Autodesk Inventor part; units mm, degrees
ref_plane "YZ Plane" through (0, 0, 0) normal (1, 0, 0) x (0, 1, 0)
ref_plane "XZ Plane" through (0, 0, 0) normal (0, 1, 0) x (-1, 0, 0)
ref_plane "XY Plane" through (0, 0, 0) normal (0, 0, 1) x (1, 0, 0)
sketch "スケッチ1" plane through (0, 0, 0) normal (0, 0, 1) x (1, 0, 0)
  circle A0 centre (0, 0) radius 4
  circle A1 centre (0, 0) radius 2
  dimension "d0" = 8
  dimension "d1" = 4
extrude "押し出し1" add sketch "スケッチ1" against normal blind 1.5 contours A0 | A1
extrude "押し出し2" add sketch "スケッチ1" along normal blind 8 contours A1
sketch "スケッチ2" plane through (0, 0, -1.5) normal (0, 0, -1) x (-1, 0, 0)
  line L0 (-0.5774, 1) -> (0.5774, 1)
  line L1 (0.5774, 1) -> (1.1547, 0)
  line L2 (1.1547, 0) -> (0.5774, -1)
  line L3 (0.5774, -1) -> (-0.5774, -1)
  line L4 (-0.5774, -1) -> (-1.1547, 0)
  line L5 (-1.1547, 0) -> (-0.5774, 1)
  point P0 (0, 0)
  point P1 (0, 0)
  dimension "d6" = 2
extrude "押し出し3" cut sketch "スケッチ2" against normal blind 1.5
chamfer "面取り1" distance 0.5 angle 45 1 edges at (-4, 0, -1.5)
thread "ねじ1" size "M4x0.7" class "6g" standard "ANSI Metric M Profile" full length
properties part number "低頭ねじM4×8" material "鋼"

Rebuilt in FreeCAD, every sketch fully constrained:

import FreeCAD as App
import Part
import Sketcher
from FreeCAD import Vector
Q = App.Units.Quantity


def edges_at(feature, points):
    """Names of the edges that pass closest to the given points."""
    edges = feature.Shape.Edges
    near = lambda p: min(range(len(edges)), key=lambda i: edges[i].distToShape(Part.Vertex(*p))[0])
    return sorted({f"Edge{near(p) + 1}" for p in points})


def add_polygon(sketch, points):
    """Adds a closed chain of lines whose ends are joined by coincident constraints."""
    first, n = sketch.GeometryCount, len(points)
    for a, b in zip(points, points[1:] + points[:1]):
        sketch.addGeometry(Part.LineSegment(App.Vector(*a, 0), App.Vector(*b, 0)), False)
    for i in range(n):
        sketch.addConstraint(Sketcher.Constraint("Coincident", first + i, 2, first + (i + 1) % n, 1))

doc = App.newDocument("Part")
params = doc.addObject("Spreadsheet::Sheet", "Params")
for row, (alias, value) in enumerate([
    ("sketch1_diameter", "8 mm"),
    ("pad1_length", "1.5 mm"),
    ("sketch2_diameter", "4 mm"),
    ("pad2_length", "8 mm"),
    ("pocket1_length", "1.5 mm"),
    ("chamfer_size", "0.5 mm"),
], start=1):
    params.set(f"A{row}", alias)
    params.set(f"B{row}", "=" + value)
    params.setAlias(f"B{row}", alias)

body = doc.addObject("PartDesign::Body", "Body")

sketch1 = body.newObject("Sketcher::SketchObject", "Sketch")
sketch1.AttachmentSupport = (doc.getObject("XY_Plane"), [""])
sketch1.MapMode = "FlatFace"
sketch1.addGeometry(Part.Circle(Vector(0, 0, 0), Vector(0, 0, 1), 4), False)
sketch1.addConstraint([
    Sketcher.Constraint("Coincident", 0, 3, -1, 1),
    Sketcher.Constraint("Diameter", 0, Q("8 mm")),
])
sketch1.setExpression("Constraints[1]", "Params.sketch1_diameter")
pad1 = body.newObject("PartDesign::Pad", "Pad")
pad1.Profile = sketch1
pad1.setExpression("Length", "Params.pad1_length")
pad1.Reversed = True

sketch2 = body.newObject("Sketcher::SketchObject", "Sketch001")
sketch2.AttachmentSupport = (doc.getObject("XY_Plane"), [""])
sketch2.MapMode = "FlatFace"
sketch2.addGeometry(Part.Circle(Vector(0, 0, 0), Vector(0, 0, 1), 2), False)
sketch2.addConstraint([
    Sketcher.Constraint("Coincident", 0, 3, -1, 1),
    Sketcher.Constraint("Diameter", 0, Q("4 mm")),
])
sketch2.setExpression("Constraints[1]", "Params.sketch2_diameter")
pad2 = body.newObject("PartDesign::Pad", "Pad001")
pad2.Profile = sketch2
pad2.setExpression("Length", "Params.pad2_length")

sketch3 = body.newObject("Sketcher::SketchObject", "Sketch002")
sketch3.AttachmentSupport = (doc.getObject("XY_Plane"), [""])
sketch3.MapMode = "FlatFace"
sketch3.AttachmentOffset = App.Placement(Vector(0, 0, -1.5), App.Rotation())
add_polygon(sketch3, [(-0.5774, 1), (0.5774, 1), (1.1547, 0), (0.5774, -1), (-0.5774, -1), (-1.1547, 0)])
sketch3.addConstraint([
    Sketcher.Constraint("Horizontal", 0),
    Sketcher.Constraint("Horizontal", 3),
    Sketcher.Constraint("Symmetric", 0, 2, 3, 2, -1, 1),
    Sketcher.Constraint("Symmetric", 1, 2, 4, 2, -1, 1),
    Sketcher.Constraint("PointOnObject", 1, 2, -1),
    Sketcher.Constraint("Parallel", 2, 5),
    Sketcher.Constraint("Vertical", 0, 2, 2, 2),
    Sketcher.Constraint("DistanceY", 2, 2, 0, 2, Q("2 mm")),
    Sketcher.Constraint("DistanceX", 0, 1, 0, 2, Q("1.1548 mm")),
    Sketcher.Constraint("DistanceX", 3, 2, 1, 2, Q("1.732 mm")),
])
pocket1 = body.newObject("PartDesign::Pocket", "Pocket")
pocket1.Profile = sketch3
pocket1.setExpression("Length", "Params.pocket1_length")
pocket1.Reversed = True
doc.recompute()

chamfer = body.newObject("PartDesign::Chamfer", "Chamfer")
chamfer.Base = (pocket1, edges_at(pocket1, [(-4, 0, -1.5)]))
chamfer.setExpression("Size", "Params.chamfer_size")

doc.recompute()
